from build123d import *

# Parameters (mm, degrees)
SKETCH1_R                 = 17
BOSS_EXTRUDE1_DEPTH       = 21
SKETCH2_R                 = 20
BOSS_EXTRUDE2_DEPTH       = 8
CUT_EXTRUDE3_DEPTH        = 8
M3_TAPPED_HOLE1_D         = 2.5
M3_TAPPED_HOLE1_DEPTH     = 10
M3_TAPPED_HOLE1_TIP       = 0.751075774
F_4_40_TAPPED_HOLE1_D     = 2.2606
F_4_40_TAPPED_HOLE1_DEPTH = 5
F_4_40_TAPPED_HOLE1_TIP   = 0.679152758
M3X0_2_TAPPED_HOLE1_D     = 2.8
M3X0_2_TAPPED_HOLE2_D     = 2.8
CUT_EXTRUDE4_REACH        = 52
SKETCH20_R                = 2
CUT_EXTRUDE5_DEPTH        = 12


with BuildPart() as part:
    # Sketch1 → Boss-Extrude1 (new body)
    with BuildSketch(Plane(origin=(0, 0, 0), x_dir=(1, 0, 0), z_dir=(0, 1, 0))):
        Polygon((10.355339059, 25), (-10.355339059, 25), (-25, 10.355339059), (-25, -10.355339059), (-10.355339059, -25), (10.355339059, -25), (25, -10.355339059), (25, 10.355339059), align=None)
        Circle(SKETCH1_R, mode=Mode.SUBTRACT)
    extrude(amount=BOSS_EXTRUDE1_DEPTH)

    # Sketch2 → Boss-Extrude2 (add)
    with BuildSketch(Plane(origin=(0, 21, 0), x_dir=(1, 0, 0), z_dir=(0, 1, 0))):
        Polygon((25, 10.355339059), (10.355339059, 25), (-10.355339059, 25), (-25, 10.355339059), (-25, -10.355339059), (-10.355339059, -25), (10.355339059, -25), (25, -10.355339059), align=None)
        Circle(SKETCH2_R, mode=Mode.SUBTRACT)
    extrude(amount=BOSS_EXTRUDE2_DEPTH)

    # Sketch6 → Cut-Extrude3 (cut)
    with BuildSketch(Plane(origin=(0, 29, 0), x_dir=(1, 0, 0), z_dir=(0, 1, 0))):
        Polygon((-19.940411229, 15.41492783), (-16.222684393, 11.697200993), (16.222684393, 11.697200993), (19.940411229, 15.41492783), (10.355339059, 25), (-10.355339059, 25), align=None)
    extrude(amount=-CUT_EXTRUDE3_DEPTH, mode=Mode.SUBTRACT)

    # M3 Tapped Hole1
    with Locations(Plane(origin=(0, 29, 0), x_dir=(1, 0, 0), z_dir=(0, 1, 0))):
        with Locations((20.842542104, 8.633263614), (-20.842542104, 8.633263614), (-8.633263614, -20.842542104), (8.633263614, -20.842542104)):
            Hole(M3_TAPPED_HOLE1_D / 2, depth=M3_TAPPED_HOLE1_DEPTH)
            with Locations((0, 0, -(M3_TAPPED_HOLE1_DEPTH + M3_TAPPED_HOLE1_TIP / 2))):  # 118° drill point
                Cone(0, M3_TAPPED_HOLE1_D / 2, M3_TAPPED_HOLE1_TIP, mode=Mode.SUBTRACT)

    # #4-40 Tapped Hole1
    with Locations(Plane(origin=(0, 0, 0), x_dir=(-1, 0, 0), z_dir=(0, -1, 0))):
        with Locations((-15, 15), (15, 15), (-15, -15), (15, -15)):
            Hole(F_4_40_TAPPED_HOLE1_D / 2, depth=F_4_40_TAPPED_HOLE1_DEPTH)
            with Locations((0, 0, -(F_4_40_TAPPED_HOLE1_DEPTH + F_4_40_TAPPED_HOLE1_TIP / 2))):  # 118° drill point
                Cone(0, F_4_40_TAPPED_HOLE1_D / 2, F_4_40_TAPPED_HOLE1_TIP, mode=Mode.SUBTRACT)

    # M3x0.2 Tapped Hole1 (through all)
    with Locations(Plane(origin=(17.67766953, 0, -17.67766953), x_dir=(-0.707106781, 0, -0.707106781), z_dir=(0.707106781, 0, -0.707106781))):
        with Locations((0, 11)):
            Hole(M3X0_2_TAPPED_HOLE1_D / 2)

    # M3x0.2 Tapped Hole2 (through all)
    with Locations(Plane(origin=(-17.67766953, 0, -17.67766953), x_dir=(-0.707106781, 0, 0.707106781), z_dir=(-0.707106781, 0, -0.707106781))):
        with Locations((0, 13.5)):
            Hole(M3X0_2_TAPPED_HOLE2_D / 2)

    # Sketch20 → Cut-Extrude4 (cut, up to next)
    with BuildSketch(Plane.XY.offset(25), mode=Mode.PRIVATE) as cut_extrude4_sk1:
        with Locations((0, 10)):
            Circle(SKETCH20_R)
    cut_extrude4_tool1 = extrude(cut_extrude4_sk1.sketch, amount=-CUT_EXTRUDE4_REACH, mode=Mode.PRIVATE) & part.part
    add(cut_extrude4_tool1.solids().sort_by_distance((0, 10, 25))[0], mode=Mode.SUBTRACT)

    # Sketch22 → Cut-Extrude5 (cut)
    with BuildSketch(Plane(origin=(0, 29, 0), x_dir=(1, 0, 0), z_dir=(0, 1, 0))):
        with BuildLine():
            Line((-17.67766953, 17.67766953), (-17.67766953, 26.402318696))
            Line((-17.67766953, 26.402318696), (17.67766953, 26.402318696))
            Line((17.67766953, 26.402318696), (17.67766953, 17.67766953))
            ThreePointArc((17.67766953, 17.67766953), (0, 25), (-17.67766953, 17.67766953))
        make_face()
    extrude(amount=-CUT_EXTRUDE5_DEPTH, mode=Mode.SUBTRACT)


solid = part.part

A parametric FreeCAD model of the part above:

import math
import FreeCAD as App
import Part
import Sketcher

doc = App.newDocument("Part")
body = doc.addObject("PartDesign::Body", "Body")

sketch1 = body.newObject("Sketcher::SketchObject", "Sketch")
sketch1.AttachmentSupport = (doc.getObject("XZ_Plane"), [""])
sketch1.MapMode = "FlatFace"
sketch1.addGeometry([
    Part.LineSegment(App.Vector(10.355339, -25, 0), App.Vector(-10.355339, -25, 0)),
    Part.LineSegment(App.Vector(-10.355339, -25, 0), App.Vector(-25, -10.355339, 0)),
    Part.LineSegment(App.Vector(-25, -10.355339, 0), App.Vector(-25, 10.355339, 0)),
    Part.LineSegment(App.Vector(-25, 10.355339, 0), App.Vector(-10.355339, 25, 0)),
    Part.LineSegment(App.Vector(-10.355339, 25, 0), App.Vector(10.355339, 25, 0)),
    Part.LineSegment(App.Vector(10.355339, 25, 0), App.Vector(25, 10.355339, 0)),
    Part.LineSegment(App.Vector(25, 10.355339, 0), App.Vector(25, -10.355339, 0)),
    Part.LineSegment(App.Vector(25, -10.355339, 0), App.Vector(10.355339, -25, 0)),
    Part.Circle(App.Vector(0, 0, 0), App.Vector(0, 0, 1), 17),
], False)
sketch1.addConstraint([
    Sketcher.Constraint("Coincident", 0, 2, 1, 1),
    Sketcher.Constraint("Coincident", 1, 2, 2, 1),
    Sketcher.Constraint("Coincident", 2, 2, 3, 1),
    Sketcher.Constraint("Coincident", 3, 2, 4, 1),
    Sketcher.Constraint("Coincident", 4, 2, 5, 1),
    Sketcher.Constraint("Coincident", 5, 2, 6, 1),
    Sketcher.Constraint("Coincident", 6, 2, 7, 1),
    Sketcher.Constraint("Coincident", 7, 2, 0, 1),
    Sketcher.Constraint("Horizontal", 0),
    Sketcher.Constraint("Vertical", 2),
    Sketcher.Constraint("Horizontal", 4),
    Sketcher.Constraint("Vertical", 6),
    Sketcher.Constraint("Coincident", 8, 3, -1, 1),
    Sketcher.Constraint("Symmetric", 0, 2, 4, 2, -1, 1),
    Sketcher.Constraint("Symmetric", 1, 2, 5, 2, -1, 1),
    Sketcher.Constraint("Perpendicular", 1, 3),
    Sketcher.Constraint("Perpendicular", 5, 7),
    Sketcher.Constraint("Horizontal", 2, 2, 5, 2),
    Sketcher.Constraint("Horizontal", 1, 2, 6, 2),
    Sketcher.Constraint("Vertical", 0, 2, 3, 2),
    Sketcher.Constraint("Equal", 4, 2),
    Sketcher.Constraint("Diameter", 8, 34.0),
    Sketcher.Constraint("DistanceY", 0, 2, -1, 1, 25.0),
    Sketcher.Constraint("DistanceX", 0, 2, 0, 1, 20.710678),
])
pad1 = body.newObject("PartDesign::Pad", "Pad")
pad1.Profile = sketch1
pad1.Length = 21
pad1.Reversed = True

sketch2 = body.newObject("Sketcher::SketchObject", "Sketch001")
sketch2.AttachmentSupport = (doc.getObject("XZ_Plane"), [""])
sketch2.MapMode = "FlatFace"
sketch2.AttachmentOffset = App.Placement(App.Vector(0, 0, -21), App.Rotation())
sketch2.addGeometry([
    Part.LineSegment(App.Vector(25, -10.355339, 0), App.Vector(10.355339, -25, 0)),
    Part.LineSegment(App.Vector(10.355339, -25, 0), App.Vector(-10.355339, -25, 0)),
    Part.LineSegment(App.Vector(-10.355339, -25, 0), App.Vector(-25, -10.355339, 0)),
    Part.LineSegment(App.Vector(-25, -10.355339, 0), App.Vector(-25, 10.355339, 0)),
    Part.LineSegment(App.Vector(-25, 10.355339, 0), App.Vector(-10.355339, 25, 0)),
    Part.LineSegment(App.Vector(-10.355339, 25, 0), App.Vector(10.355339, 25, 0)),
    Part.LineSegment(App.Vector(10.355339, 25, 0), App.Vector(25, 10.355339, 0)),
    Part.LineSegment(App.Vector(25, 10.355339, 0), App.Vector(25, -10.355339, 0)),
    Part.Circle(App.Vector(0, 0, 0), App.Vector(0, 0, 1), 20),
], False)
sketch2.addConstraint([
    Sketcher.Constraint("Coincident", 0, 2, 1, 1),
    Sketcher.Constraint("Coincident", 1, 2, 2, 1),
    Sketcher.Constraint("Coincident", 2, 2, 3, 1),
    Sketcher.Constraint("Coincident", 3, 2, 4, 1),
    Sketcher.Constraint("Coincident", 4, 2, 5, 1),
    Sketcher.Constraint("Coincident", 5, 2, 6, 1),
    Sketcher.Constraint("Coincident", 6, 2, 7, 1),
    Sketcher.Constraint("Coincident", 7, 2, 0, 1),
    Sketcher.Constraint("Horizontal", 1),
    Sketcher.Constraint("Vertical", 3),
    Sketcher.Constraint("Horizontal", 5),
    Sketcher.Constraint("Vertical", 7),
    Sketcher.Constraint("Coincident", 8, 3, -1, 1),
    Sketcher.Constraint("Symmetric", 0, 2, 4, 2, -1, 1),
    Sketcher.Constraint("Symmetric", 2, 2, 6, 2, -1, 1),
    Sketcher.Constraint("Perpendicular", 0, 2),
    Sketcher.Constraint("Perpendicular", 2, 4),
    Sketcher.Constraint("Perpendicular", 4, 6),
    Sketcher.Constraint("Horizontal", 3, 2, 6, 2),
    Sketcher.Constraint("Vertical", 1, 2, 4, 2),
    Sketcher.Constraint("Equal", 5, 3),
    Sketcher.Constraint("Diameter", 8, 40.0),
    Sketcher.Constraint("DistanceY", 0, 2, -1, 1, 25.0),
    Sketcher.Constraint("DistanceX", 1, 2, 1, 1, 20.710678),
])
pad2 = body.newObject("PartDesign::Pad", "Pad001")
pad2.Profile = sketch2
pad2.Length = 8
pad2.Reversed = True

sketch3 = body.newObject("Sketcher::SketchObject", "Sketch002")
sketch3.AttachmentSupport = (doc.getObject("XZ_Plane"), [""])
sketch3.MapMode = "FlatFace"
sketch3.AttachmentOffset = App.Placement(App.Vector(0, 0, -29), App.Rotation())
sketch3.addGeometry([
    Part.LineSegment(App.Vector(-19.940411, -15.414928, 0), App.Vector(-16.222684, -11.697201, 0)),
    Part.LineSegment(App.Vector(-16.222684, -11.697201, 0), App.Vector(16.222684, -11.697201, 0)),
    Part.LineSegment(App.Vector(16.222684, -11.697201, 0), App.Vector(19.940411, -15.414928, 0)),
    Part.LineSegment(App.Vector(19.940411, -15.414928, 0), App.Vector(10.355339, -25, 0)),
    Part.LineSegment(App.Vector(10.355339, -25, 0), App.Vector(-10.355339, -25, 0)),
    Part.LineSegment(App.Vector(-10.355339, -25, 0), App.Vector(-19.940411, -15.414928, 0)),
], False)
sketch3.addConstraint([
    Sketcher.Constraint("Coincident", 0, 2, 1, 1),
    Sketcher.Constraint("Coincident", 1, 2, 2, 1),
    Sketcher.Constraint("Coincident", 2, 2, 3, 1),
    Sketcher.Constraint("Coincident", 3, 2, 4, 1),
    Sketcher.Constraint("Coincident", 4, 2, 5, 1),
    Sketcher.Constraint("Coincident", 5, 2, 0, 1),
    Sketcher.Constraint("Horizontal", 1),
    Sketcher.Constraint("Horizontal", 4),
    Sketcher.Constraint("Symmetric", 2, 2, 5, 2, -2),
    Sketcher.Constraint("Perpendicular", 0, 2),
    Sketcher.Constraint("Perpendicular", 2, 3),
    Sketcher.Constraint("Perpendicular", 3, 5),
    Sketcher.Constraint("Equal", 0, 2),
    Sketcher.Constraint("DistanceY", 3, 2, -1, 1, 25.0),
    Sketcher.Constraint("DistanceX", 1, 1, 1, 2, 32.445369),
    Sketcher.Constraint("DistanceX", 4, 2, 4, 1, 20.710678),
    Sketcher.Constraint("DistanceY", 0, 2, -1, 1, 11.697201),
])
pocket1 = body.newObject("PartDesign::Pocket", "Pocket")
pocket1.Profile = sketch3
pocket1.Length = 8
pocket1.Reversed = True

sketch4 = body.newObject("Sketcher::SketchObject", "Sketch003")
sketch4.AttachmentSupport = (doc.getObject("XZ_Plane"), [""])
sketch4.MapMode = "FlatFace"
sketch4.AttachmentOffset = App.Placement(App.Vector(0, 0, -29), App.Rotation())
sketch4.addGeometry([
    Part.Circle(App.Vector(20.842542, -8.633264, 0), App.Vector(0, 0, 1), 1.25),
    Part.Circle(App.Vector(-20.842542, -8.633264, 0), App.Vector(0, 0, 1), 1.25),
    Part.Circle(App.Vector(-8.633264, 20.842542, 0), App.Vector(0, 0, 1), 1.25),
    Part.Circle(App.Vector(8.633264, 20.842542, 0), App.Vector(0, 0, 1), 1.25),
], False)
sketch4.addConstraint([
    Sketcher.Constraint("Equal", 0, 1),
    Sketcher.Constraint("Equal", 1, 2),
    Sketcher.Constraint("Equal", 2, 3),
    Sketcher.Constraint("Symmetric", 0, 3, 1, 3, -2),
    Sketcher.Constraint("Symmetric", 2, 3, 3, 3, -2),
    Sketcher.Constraint("Diameter", 0, 2.5),
    Sketcher.Constraint("DistanceX", 1, 3, 2, 3, 12.209278),
    Sketcher.Constraint("DistanceX", -1, 1, 0, 3, 20.842542),
    Sketcher.Constraint("DistanceY", 0, 3, -1, 1, 8.633264),
    Sketcher.Constraint("DistanceY", -1, 1, 2, 3, 20.842542),
])
doc.recompute()
hole = body.newObject("PartDesign::Hole", "Hole")
hole.Profile = sketch4
hole.ThreadType = "None"
hole.Diameter = 2.5
hole.DepthType = "Dimension"
hole.Depth = 10
hole.DrillPoint = "Angled"
hole.DrillPointAngle = 118
hole.Reversed = True

sketch5 = body.newObject("Sketcher::SketchObject", "Sketch004")
sketch5.AttachmentSupport = (doc.getObject("XZ_Plane"), [""])
sketch5.MapMode = "FlatFace"
sketch5.addGeometry([
    Part.Circle(App.Vector(15, -15, 0), App.Vector(0, 0, 1), 1.1303),
    Part.Circle(App.Vector(-15, -15, 0), App.Vector(0, 0, 1), 1.1303),
    Part.Circle(App.Vector(15, 15, 0), App.Vector(0, 0, 1), 1.1303),
    Part.Circle(App.Vector(-15, 15, 0), App.Vector(0, 0, 1), 1.1303),
], False)
sketch5.addConstraint([
    Sketcher.Constraint("Equal", 0, 1),
    Sketcher.Constraint("Equal", 1, 2),
    Sketcher.Constraint("Equal", 2, 3),
    Sketcher.Constraint("Symmetric", 1, 3, 2, 3, -1, 1),
    Sketcher.Constraint("Symmetric", 0, 3, 3, 3, -1, 1),
    Sketcher.Constraint("Symmetric", 0, 3, 1, 3, -2),
    Sketcher.Constraint("DistanceX", -1, 1, 0, 3, 15.0),
    Sketcher.Constraint("DistanceY", 0, 3, -1, 1, 15.0),
    Sketcher.Constraint("Diameter", 0, 2.2606),
])
doc.recompute()
hole2 = body.newObject("PartDesign::Hole", "Hole001")
hole2.Profile = sketch5
hole2.ThreadType = "None"
hole2.Diameter = 2.2606
hole2.DepthType = "Dimension"
hole2.Depth = 5
hole2.DrillPoint = "Angled"
hole2.DrillPointAngle = 118

sketch6 = body.newObject("Sketcher::SketchObject", "Sketch005")
sketch6.Placement = App.Placement(App.Vector(17.67767, 0, -17.67767), App.Rotation(App.Vector(-0.707106781, 0, -0.707106781), App.Vector(0, 0.999999999, 0), App.Vector(0.707106781, 0, -0.707106781), "ZXY"))
sketch6.addGeometry(Part.Circle(App.Vector(0, 11, 0), App.Vector(0, 0, 1), 1.4), False)
sketch6.addConstraint([
    Sketcher.Constraint("PointOnObject", 0, 3, -2),
    Sketcher.Constraint("Diameter", 0, 2.8),
    Sketcher.Constraint("DistanceY", -1, 1, 0, 3, 11.0),
])
doc.recompute()
hole3 = body.newObject("PartDesign::Hole", "Hole002")
hole3.Profile = sketch6
hole3.ThreadType = "None"
hole3.Diameter = 2.8
hole3.DepthType = "ThroughAll"

sketch7 = body.newObject("Sketcher::SketchObject", "Sketch006")
sketch7.Placement = App.Placement(App.Vector(-17.67767, 0, -17.67767), App.Rotation(App.Vector(-0.707106781, 0, 0.707106781), App.Vector(0, 0.999999999, 0), App.Vector(-0.707106781, 0, -0.707106781), "ZXY"))
sketch7.addGeometry(Part.Circle(App.Vector(0, 13.5, 0), App.Vector(0, 0, 1), 1.4), False)
sketch7.addConstraint([
    Sketcher.Constraint("PointOnObject", 0, 3, -2),
    Sketcher.Constraint("Diameter", 0, 2.8),
    Sketcher.Constraint("DistanceY", -1, 1, 0, 3, 13.5),
])
doc.recompute()
hole4 = body.newObject("PartDesign::Hole", "Hole003")
hole4.Profile = sketch7
hole4.ThreadType = "None"
hole4.Diameter = 2.8
hole4.DepthType = "ThroughAll"

sketch8 = body.newObject("Sketcher::SketchObject", "Sketch007")
sketch8.AttachmentSupport = (doc.getObject("XY_Plane"), [""])
sketch8.MapMode = "FlatFace"
sketch8.AttachmentOffset = App.Placement(App.Vector(0, 0, 25), App.Rotation())
sketch8.addGeometry(Part.Circle(App.Vector(0, 10, 0), App.Vector(0, 0, 1), 2), False)
sketch8.addConstraint([
    Sketcher.Constraint("PointOnObject", 0, 3, -2),
    Sketcher.Constraint("Diameter", 0, 4.0),
    Sketcher.Constraint("DistanceY", -1, 1, 0, 3, 10.0),
])
pocket2 = body.newObject("PartDesign::Pocket", "Pocket001")
pocket2.Profile = sketch8
pocket2.Type = "UpToFirst"

sketch9 = body.newObject("Sketcher::SketchObject", "Sketch008")
sketch9.AttachmentSupport = (doc.getObject("XZ_Plane"), [""])
sketch9.MapMode = "FlatFace"
sketch9.AttachmentOffset = App.Placement(App.Vector(0, 0, -29), App.Rotation())
sketch9.addGeometry([
    Part.LineSegment(App.Vector(-17.67767, -26.402319, 0), App.Vector(-17.67767, -17.67767, 0)),
    Part.ArcOfCircle(Part.Circle(App.Vector(0, 0, 0), App.Vector(0, 0, 1), 25), math.radians(-135), math.radians(-45)),
    Part.LineSegment(App.Vector(17.67767, -17.67767, 0), App.Vector(17.67767, -26.402319, 0)),
    Part.LineSegment(App.Vector(17.67767, -26.402319, 0), App.Vector(-17.67767, -26.402319, 0)),
], False)
sketch9.addConstraint([
    Sketcher.Constraint("Coincident", 0, 2, 1, 1),
    Sketcher.Constraint("Coincident", 1, 2, 2, 1),
    Sketcher.Constraint("Coincident", 2, 2, 3, 1),
    Sketcher.Constraint("Coincident", 3, 2, 0, 1),
    Sketcher.Constraint("Vertical", 0),
    Sketcher.Constraint("Vertical", 2),
    Sketcher.Constraint("Horizontal", 3),
    Sketcher.Constraint("Coincident", 1, 3, -1, 1),
    Sketcher.Constraint("Horizontal", 0, 2, 1, 2),
    Sketcher.Constraint("Radius", 1, 25.0),
    Sketcher.Constraint("DistanceX", 3, 2, 3, 1, 35.355339),
    Sketcher.Constraint("DistanceY", 0, 1, 0, 2, 8.724649),
])
pocket3 = body.newObject("PartDesign::Pocket", "Pocket002")
pocket3.Profile = sketch9
pocket3.Length = 12
pocket3.Reversed = True

doc.recompute()
